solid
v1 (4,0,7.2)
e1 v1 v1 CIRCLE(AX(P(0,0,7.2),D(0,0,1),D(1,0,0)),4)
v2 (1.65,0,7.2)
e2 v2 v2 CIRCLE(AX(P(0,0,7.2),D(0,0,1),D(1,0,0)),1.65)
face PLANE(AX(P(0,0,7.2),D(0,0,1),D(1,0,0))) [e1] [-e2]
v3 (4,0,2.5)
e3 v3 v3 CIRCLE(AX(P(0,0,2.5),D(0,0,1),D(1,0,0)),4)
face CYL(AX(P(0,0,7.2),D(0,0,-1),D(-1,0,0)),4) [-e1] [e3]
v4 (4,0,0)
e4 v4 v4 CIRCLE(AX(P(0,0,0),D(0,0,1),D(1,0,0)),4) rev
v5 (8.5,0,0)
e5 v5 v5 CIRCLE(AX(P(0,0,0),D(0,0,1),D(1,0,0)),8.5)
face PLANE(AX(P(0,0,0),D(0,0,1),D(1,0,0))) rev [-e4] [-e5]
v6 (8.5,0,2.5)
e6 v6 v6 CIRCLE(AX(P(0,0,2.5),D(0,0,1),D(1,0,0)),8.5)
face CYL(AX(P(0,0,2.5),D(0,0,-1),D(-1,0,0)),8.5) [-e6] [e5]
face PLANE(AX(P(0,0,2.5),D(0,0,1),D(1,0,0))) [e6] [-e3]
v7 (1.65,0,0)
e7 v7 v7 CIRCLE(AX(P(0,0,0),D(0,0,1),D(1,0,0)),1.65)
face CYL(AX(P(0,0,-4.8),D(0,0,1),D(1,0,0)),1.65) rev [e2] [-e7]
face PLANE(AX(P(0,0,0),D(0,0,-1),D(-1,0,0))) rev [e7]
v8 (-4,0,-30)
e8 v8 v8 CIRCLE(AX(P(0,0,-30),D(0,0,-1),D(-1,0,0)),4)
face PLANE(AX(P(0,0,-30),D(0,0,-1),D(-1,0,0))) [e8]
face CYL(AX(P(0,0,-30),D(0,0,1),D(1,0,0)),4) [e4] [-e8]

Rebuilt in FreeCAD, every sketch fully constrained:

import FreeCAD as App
import Part
import Sketcher

V = App.Vector
Q = App.Units.Quantity

doc = App.newDocument("Part")
body = doc.addObject("PartDesign::Body", "Body")

sketch1 = body.newObject("Sketcher::SketchObject", "Sketch")
sketch1.AttachmentSupport = (doc.getObject("XY_Plane"), [""])
sketch1.MapMode = "FlatFace"
sketch1.addGeometry(Part.Circle(V(0, 0, 0), V(0, 0, 1), 8), False)
sketch1.addConstraint([
    Sketcher.Constraint("Coincident", 0, 3, -1, 1),
    Sketcher.Constraint("Diameter", 0, Q("17 mm")),
])
pad1 = body.newObject("PartDesign::Pad", "Pad")
pad1.Profile = sketch1
pad1.Length = 2.5

sketch2 = body.newObject("Sketcher::SketchObject", "Sketch001")
sketch2.AttachmentSupport = (doc.getObject("XY_Plane"), [""])
sketch2.MapMode = "FlatFace"
sketch2.AttachmentOffset = App.Placement(V(0, 0, 2.5), App.Rotation())
sketch2.addGeometry(Part.Circle(V(0, 0, 0), V(0, 0, 1), 4), False)
sketch2.addConstraint([
    Sketcher.Constraint("Coincident", 0, 3, -1, 1),
    Sketcher.Constraint("Diameter", 0, Q("8 mm")),
])
pad2 = body.newObject("PartDesign::Pad", "Pad001")
pad2.Profile = sketch2
pad2.Length = 4.7

sketch3 = body.newObject("Sketcher::SketchObject", "Sketch002")
sketch3.AttachmentSupport = (doc.getObject("XY_Plane"), [""])
sketch3.MapMode = "FlatFace"
sketch3.AttachmentOffset = App.Placement(V(0, 0, 7.2), App.Rotation())
sketch3.addGeometry(Part.Circle(V(0, 0, 0), V(0, 0, 1), 1.6), False)
sketch3.addConstraint([
    Sketcher.Constraint("Coincident", 0, 3, -1, 1),
    Sketcher.Constraint("Diameter", 0, Q("3.3 mm")),
])
pocket1 = body.newObject("PartDesign::Pocket", "Pocket")
pocket1.Profile = sketch3
pocket1.Length = 12

sketch4 = body.newObject("Sketcher::SketchObject", "Sketch003")
sketch4.AttachmentSupport = (doc.getObject("XY_Plane"), [""])
sketch4.MapMode = "FlatFace"
sketch4.AttachmentOffset = App.Placement(V(0, 0, -30), App.Rotation())
sketch4.addGeometry(Part.Circle(V(0, 0, 0), V(0, 0, 1), 4), False)
sketch4.addConstraint([
    Sketcher.Constraint("Coincident", 0, 3, -1, 1),
    Sketcher.Constraint("Diameter", 0, Q("8 mm")),
])
pad3 = body.newObject("PartDesign::Pad", "Pad002")
pad3.Profile = sketch4
pad3.Length = 30

doc.recompute()
